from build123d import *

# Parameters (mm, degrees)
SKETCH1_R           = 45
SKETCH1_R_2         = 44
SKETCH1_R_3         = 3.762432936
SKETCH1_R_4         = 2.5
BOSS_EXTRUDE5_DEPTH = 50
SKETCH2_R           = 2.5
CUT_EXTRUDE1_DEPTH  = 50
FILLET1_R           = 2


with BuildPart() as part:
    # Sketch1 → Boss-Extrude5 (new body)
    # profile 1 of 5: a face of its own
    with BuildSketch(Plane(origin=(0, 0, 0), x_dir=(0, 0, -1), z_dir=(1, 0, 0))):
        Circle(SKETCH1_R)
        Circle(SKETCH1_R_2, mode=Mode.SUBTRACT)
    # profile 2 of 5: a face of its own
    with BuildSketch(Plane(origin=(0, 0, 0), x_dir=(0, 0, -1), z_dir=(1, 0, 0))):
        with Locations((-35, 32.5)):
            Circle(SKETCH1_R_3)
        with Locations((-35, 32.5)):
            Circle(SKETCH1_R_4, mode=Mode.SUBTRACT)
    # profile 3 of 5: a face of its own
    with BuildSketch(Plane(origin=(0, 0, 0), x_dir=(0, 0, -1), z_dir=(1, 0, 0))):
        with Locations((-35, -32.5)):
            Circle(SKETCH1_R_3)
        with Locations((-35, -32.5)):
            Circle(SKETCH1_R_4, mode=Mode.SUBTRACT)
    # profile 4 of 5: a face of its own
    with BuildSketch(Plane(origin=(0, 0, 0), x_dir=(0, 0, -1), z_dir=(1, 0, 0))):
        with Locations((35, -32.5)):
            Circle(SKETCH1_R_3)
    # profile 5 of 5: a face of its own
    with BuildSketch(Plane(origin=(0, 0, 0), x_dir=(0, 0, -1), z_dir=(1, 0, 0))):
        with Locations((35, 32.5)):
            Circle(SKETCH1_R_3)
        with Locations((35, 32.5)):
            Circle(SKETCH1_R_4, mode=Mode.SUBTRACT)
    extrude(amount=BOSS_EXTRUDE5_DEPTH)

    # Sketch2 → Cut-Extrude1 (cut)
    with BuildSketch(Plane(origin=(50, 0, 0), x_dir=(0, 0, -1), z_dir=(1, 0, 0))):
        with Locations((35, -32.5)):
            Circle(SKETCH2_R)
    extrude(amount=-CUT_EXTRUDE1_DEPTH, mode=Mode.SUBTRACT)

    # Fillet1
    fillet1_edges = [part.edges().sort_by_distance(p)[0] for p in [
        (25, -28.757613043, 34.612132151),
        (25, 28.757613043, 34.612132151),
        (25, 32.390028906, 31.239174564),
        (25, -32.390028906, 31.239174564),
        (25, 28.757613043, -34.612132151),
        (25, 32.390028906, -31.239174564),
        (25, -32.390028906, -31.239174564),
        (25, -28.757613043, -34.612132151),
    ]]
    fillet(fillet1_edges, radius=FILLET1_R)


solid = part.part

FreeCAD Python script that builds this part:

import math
import FreeCAD as App
import Part
import Sketcher
from FreeCAD import Vector


def edges_at(feature, points):
    """Names of the edges that pass closest to the given points."""
    edges = feature.Shape.Edges
    near = lambda p: min(range(len(edges)), key=lambda i: edges[i].distToShape(Part.Vertex(*p))[0])
    return sorted({f"Edge{near(p) + 1}" for p in points})

doc = App.newDocument("Part")
body = doc.addObject("PartDesign::Body", "Body")

sketch1 = body.newObject("Sketcher::SketchObject", "Sketch")
sketch1.AttachmentSupport = (doc.getObject("YZ_Plane"), [""])
sketch1.MapMode = "FlatFace"
sketch1.addGeometry([
    Part.ArcOfCircle(Part.Circle(Vector(0, 0, 0), Vector(0, 0, 1), 45), math.radians(-129.721618), math.radians(-50.278382)),
    Part.ArcOfCircle(Part.Circle(Vector(32.5, -35, 0), Vector(0, 0, 1), 3.762433), math.radians(174.082886), math.radians(451.674921)),
    Part.ArcOfCircle(Part.Circle(Vector(0, 0, 0), Vector(0, 0, 1), 45), math.radians(-43.963811), math.radians(43.963811)),
    Part.ArcOfCircle(Part.Circle(Vector(32.5, 35, 0), Vector(0, 0, 1), 3.762433), math.radians(-91.674921), math.radians(185.917114)),
    Part.ArcOfCircle(Part.Circle(Vector(0, 0, 0), Vector(0, 0, 1), 45), math.radians(50.278382), math.radians(129.721618)),
    Part.ArcOfCircle(Part.Circle(Vector(-32.5, 35, 0), Vector(0, 0, 1), 3.762433), math.radians(-5.917114), math.radians(271.674921)),
    Part.ArcOfCircle(Part.Circle(Vector(0, 0, 0), Vector(0, 0, 1), 45), math.radians(136.036189), math.radians(223.963811)),
    Part.ArcOfCircle(Part.Circle(Vector(-32.5, -35, 0), Vector(0, 0, 1), 3.762433), math.radians(88.325079), math.radians(365.917114)),
    Part.Circle(Vector(0, 0, 0), Vector(0, 0, 1), 44),
    Part.Circle(Vector(32.5, -35, 0), Vector(0, 0, 1), 2.5),
    Part.Circle(Vector(-32.5, 35, 0), Vector(0, 0, 1), 2.5),
    Part.Circle(Vector(32.5, 35, 0), Vector(0, 0, 1), 2.5),
], False)
sketch1.addConstraint([
    Sketcher.Constraint("Coincident", 0, 2, 1, 1),
    Sketcher.Constraint("Coincident", 1, 2, 2, 1),
    Sketcher.Constraint("Coincident", 2, 2, 3, 1),
    Sketcher.Constraint("Coincident", 3, 2, 4, 1),
    Sketcher.Constraint("Coincident", 4, 2, 5, 1),
    Sketcher.Constraint("Coincident", 5, 2, 6, 1),
    Sketcher.Constraint("Coincident", 6, 2, 7, 1),
    Sketcher.Constraint("Coincident", 7, 2, 0, 1),
    Sketcher.Constraint("Coincident", 0, 3, -1, 1),
    Sketcher.Constraint("Coincident", 2, 3, -1, 1),
    Sketcher.Constraint("Coincident", 4, 3, -1, 1),
    Sketcher.Constraint("Coincident", 6, 3, -1, 1),
    Sketcher.Constraint("Coincident", 8, 3, -1, 1),
    Sketcher.Constraint("Coincident", 9, 3, 1, 3),
    Sketcher.Constraint("Coincident", 10, 3, 5, 3),
    Sketcher.Constraint("Coincident", 11, 3, 3, 3),
    Sketcher.Constraint("Equal", 0, 2),
    Sketcher.Constraint("Equal", 1, 3),
    Sketcher.Constraint("Equal", 2, 4),
    Sketcher.Constraint("Equal", 3, 5),
    Sketcher.Constraint("Equal", 4, 6),
    Sketcher.Constraint("Equal", 5, 7),
    Sketcher.Constraint("Equal", 9, 10),
    Sketcher.Constraint("Equal", 10, 11),
    Sketcher.Constraint("Symmetric", 1, 3, 5, 3, -1, 1),
    Sketcher.Constraint("Symmetric", 3, 3, 7, 3, -1, 1),
    Sketcher.Constraint("Symmetric", 3, 3, 5, 3, -2),
    Sketcher.Constraint("Diameter", 8, 88.0),
    Sketcher.Constraint("Diameter", 9, 5.0),
    Sketcher.Constraint("Radius", 0, 45.0),
    Sketcher.Constraint("DistanceY", 1, 3, -1, 1, 35.0),
    Sketcher.Constraint("DistanceX", 5, 3, 3, 3, 65.0),
    Sketcher.Constraint("Radius", 1, 3.762433),
])
pad1 = body.newObject("PartDesign::Pad", "Pad")
pad1.Profile = sketch1
pad1.Length = 50

sketch2 = body.newObject("Sketcher::SketchObject", "Sketch001")
sketch2.AttachmentSupport = (doc.getObject("YZ_Plane"), [""])
sketch2.MapMode = "FlatFace"
sketch2.AttachmentOffset = App.Placement(Vector(0, 0, 50), App.Rotation())
sketch2.addGeometry(Part.Circle(Vector(-32.5, -35, 0), Vector(0, 0, 1), 2.5), False)
sketch2.addConstraint([
    Sketcher.Constraint("Diameter", 0, 5.0),
    Sketcher.Constraint("DistanceY", 0, 3, -1, 1, 35.0),
    Sketcher.Constraint("DistanceX", 0, 3, -1, 1, 32.5),
])
pocket1 = body.newObject("PartDesign::Pocket", "Pocket")
pocket1.Profile = sketch2
pocket1.Length = 50
doc.recompute()

fillet = body.newObject("PartDesign::Fillet", "Fillet")
fillet.Base = (pocket1, edges_at(pocket1, [
    (25, -28.758, 34.612),
    (25, 28.758, 34.612),
    (25, 32.39, 31.239),
    (25, -32.39, 31.239),
    (25, 28.758, -34.612),
    (25, 32.39, -31.239),
    (25, -32.39, -31.239),
    (25, -28.758, -34.612),
]))
fillet.Radius = 2

doc.recompute()
